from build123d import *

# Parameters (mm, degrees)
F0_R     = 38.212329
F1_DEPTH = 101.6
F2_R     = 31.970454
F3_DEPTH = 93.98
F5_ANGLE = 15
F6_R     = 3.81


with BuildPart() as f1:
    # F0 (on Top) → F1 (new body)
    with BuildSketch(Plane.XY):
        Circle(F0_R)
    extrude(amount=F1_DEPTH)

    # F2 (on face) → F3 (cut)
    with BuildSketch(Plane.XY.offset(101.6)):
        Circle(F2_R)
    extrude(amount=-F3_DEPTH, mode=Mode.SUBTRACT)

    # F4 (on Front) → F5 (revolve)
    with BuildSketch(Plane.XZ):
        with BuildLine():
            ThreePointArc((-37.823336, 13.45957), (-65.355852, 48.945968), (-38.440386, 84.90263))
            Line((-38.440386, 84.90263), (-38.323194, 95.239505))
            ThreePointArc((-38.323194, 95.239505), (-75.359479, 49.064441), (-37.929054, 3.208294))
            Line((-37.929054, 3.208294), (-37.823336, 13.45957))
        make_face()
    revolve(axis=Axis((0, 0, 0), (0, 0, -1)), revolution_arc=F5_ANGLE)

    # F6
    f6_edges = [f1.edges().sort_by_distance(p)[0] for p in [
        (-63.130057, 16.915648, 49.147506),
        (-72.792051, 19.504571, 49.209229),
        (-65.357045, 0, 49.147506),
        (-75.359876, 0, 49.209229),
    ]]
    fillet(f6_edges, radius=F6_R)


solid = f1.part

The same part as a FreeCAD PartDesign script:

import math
import FreeCAD as App
import Part
import Sketcher

V = App.Vector
Q = App.Units.Quantity


def edges_at(feature, points):
    """Names of the edges that pass closest to the given points."""
    edges = feature.Shape.Edges
    near = lambda p: min(range(len(edges)), key=lambda i: edges[i].distToShape(Part.Vertex(*p))[0])
    return sorted({f"Edge{near(p) + 1}" for p in points})

doc = App.newDocument("Part")
body = doc.addObject("PartDesign::Body", "Body")

# Sketch on XY plane
sketch1 = doc.addObject("Sketcher::SketchObject", "Sketch")
body.addObject(sketch1)
sketch1.AttachmentSupport = (doc.XY_Plane, [""])
sketch1.MapMode = "FlatFace"
sketch1.addGeometry(Part.Circle(V(0, 0, 0), V(0, 0, 1), 38.212329), False)
sketch1.addConstraint([
    Sketcher.Constraint("Coincident", 0, 3, -1, 1),
    Sketcher.Constraint("Diameter", 0, Q("76.424658 mm")),
])
pad1 = doc.addObject("PartDesign::Pad", "Pad")
body.addObject(pad1)
pad1.Profile = sketch1
pad1.Length = Q("4 in")

# Sketch on XY plane
sketch2 = doc.addObject("Sketcher::SketchObject", "Sketch001")
body.addObject(sketch2)
sketch2.AttachmentSupport = (doc.XY_Plane, [""])
sketch2.MapMode = "FlatFace"
sketch2.AttachmentOffset = App.Placement(V(0, 0, 4 * 25.4), App.Rotation())
sketch2.addGeometry(Part.Circle(V(0, 0, 0), V(0, 0, 1), 31.970454), False)
sketch2.addConstraint([
    Sketcher.Constraint("Coincident", 0, 3, -1, 1),
    Sketcher.Constraint("Diameter", 0, Q("63.940908 mm")),
])
pocket1 = doc.addObject("PartDesign::Pocket", "Pocket")
body.addObject(pocket1)
pocket1.Profile = sketch2
pocket1.Length = Q("3.7 in")

# Sketch on XZ plane
sketch3 = doc.addObject("Sketcher::SketchObject", "Sketch002")
body.addObject(sketch3)
sketch3.AttachmentSupport = (doc.XZ_Plane, [""])
sketch3.MapMode = "FlatFace"
sketch3.addGeometry([
    Part.ArcOfCircle(Part.Circle(V(-28.308136, 49.265947, 0), V(0, 0, 1), 37.049098), math.radians(105.871554), math.radians(255.118143)),
    Part.LineSegment(V(-38.440386, 84.90263, 0), V(-38.323194, 95.239505, 0)),
    Part.ArcOfCircle(Part.Circle(V(-28.308137, 49.265947, 0), V(0, 0, 1), 47.051774), math.radians(102.289531), math.radians(258.201225)),
    Part.LineSegment(V(-37.929054, 3.208294, 0), V(-37.823336, 13.45957, 0)),
], False)
sketch3.addConstraint([
    Sketcher.Constraint("Coincident", 0, 1, 1, 1),
    Sketcher.Constraint("Coincident", 1, 2, 2, 1),
    Sketcher.Constraint("Coincident", 2, 2, 3, 1),
    Sketcher.Constraint("Coincident", 3, 2, 0, 2),
    Sketcher.Constraint("Coincident", 2, 3, 0, 3),
    Sketcher.Constraint("Radius", 0, Q("37.049098 mm")),
    Sketcher.Constraint("Radius", 2, Q("47.051774 mm")),
    Sketcher.Constraint("DistanceY", 3, 2, 2, 3, Q("1.4096999 in")),
    Sketcher.Constraint("Distance", 1, Q("10.337539 mm")),
    Sketcher.Constraint("Distance", 3, Q("10.251821 mm")),
    Sketcher.Constraint("DistanceY", -1, 1, 0, 1, Q("84.90263 mm")),
    Sketcher.Constraint("DistanceY", -1, 1, 3, 2, Q("13.45957 mm")),
    Sketcher.Constraint("DistanceX", 0, 3, -1, 1, Q("28.308136 mm")),
])
revolution = doc.addObject("PartDesign::Revolution", "Revolution")
body.addObject(revolution)
revolution.Profile = sketch3
revolution.ReferenceAxis = (sketch3, ["V_Axis"])
revolution.Angle = 15
revolution.Reversed = True
doc.recompute()

fillet = doc.addObject("PartDesign::Fillet", "Fillet")
body.addObject(fillet)
fillet.Base = (revolution, edges_at(revolution, [
    (-63.13, 16.916, 49.148),
    (-72.792, 19.505, 49.209),
    (-65.357, 0, 49.148),
    (-75.36, 0, 49.209),
]))
fillet.Radius = Q("0.15 in")

doc.recompute()
